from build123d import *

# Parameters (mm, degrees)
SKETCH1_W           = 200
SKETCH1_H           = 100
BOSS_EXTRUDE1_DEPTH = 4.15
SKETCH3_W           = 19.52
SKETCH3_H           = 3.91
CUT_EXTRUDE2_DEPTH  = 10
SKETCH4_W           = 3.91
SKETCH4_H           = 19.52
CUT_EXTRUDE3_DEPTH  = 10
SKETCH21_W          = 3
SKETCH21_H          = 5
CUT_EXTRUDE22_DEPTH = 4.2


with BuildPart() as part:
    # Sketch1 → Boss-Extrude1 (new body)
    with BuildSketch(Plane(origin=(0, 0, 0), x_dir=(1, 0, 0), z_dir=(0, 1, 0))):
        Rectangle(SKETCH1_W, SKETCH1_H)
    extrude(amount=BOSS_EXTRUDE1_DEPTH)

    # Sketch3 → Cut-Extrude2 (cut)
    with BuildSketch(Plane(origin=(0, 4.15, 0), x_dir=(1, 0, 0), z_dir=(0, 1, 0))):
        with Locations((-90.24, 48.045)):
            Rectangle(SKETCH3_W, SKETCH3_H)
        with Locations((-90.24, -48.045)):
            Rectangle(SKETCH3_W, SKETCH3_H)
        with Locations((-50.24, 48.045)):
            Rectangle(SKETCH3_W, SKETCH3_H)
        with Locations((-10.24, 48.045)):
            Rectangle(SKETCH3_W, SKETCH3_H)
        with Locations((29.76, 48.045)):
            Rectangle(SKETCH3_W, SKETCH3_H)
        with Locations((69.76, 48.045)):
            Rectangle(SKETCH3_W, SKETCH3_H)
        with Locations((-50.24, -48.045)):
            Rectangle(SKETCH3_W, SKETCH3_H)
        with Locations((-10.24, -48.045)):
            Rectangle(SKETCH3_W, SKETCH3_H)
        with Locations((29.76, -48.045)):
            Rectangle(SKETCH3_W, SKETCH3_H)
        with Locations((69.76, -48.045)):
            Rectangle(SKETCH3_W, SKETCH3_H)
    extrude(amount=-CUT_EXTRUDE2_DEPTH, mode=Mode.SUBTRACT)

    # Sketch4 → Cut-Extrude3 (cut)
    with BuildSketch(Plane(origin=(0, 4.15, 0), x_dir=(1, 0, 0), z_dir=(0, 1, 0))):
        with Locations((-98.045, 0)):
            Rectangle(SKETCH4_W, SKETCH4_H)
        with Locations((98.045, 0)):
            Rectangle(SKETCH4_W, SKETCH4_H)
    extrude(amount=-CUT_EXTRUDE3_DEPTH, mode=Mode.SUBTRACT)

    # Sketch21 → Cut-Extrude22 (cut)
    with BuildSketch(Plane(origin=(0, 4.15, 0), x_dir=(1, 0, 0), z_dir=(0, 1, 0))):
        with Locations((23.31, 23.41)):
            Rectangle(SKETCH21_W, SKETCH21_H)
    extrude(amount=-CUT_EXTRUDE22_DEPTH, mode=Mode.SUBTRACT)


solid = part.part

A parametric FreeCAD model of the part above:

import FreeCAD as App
import Part
import Sketcher

doc = App.newDocument("Part")
params = doc.addObject("Spreadsheet::Sheet", "Params")
for row, (alias, value) in enumerate([
    ("sketch1_width", "200 mm"),
    ("sketch1_height", "100 mm"),
    ("pad1_length", "4.15 mm"),
    ("sketch2_width", "19.52 mm"),
    ("sketch2_height", "3.91 mm"),
    ("pocket1_length", "10 mm"),
    ("sketch3_width", "3.91 mm"),
    ("sketch3_height", "19.52 mm"),
    ("pocket2_length", "10 mm"),
    ("sketch4_width", "3 mm"),
    ("sketch4_height", "5 mm"),
    ("pocket3_length", "4.2 mm"),
], start=1):
    params.set(f"A{row}", alias)
    params.set(f"B{row}", "=" + value)
    params.setAlias(f"B{row}", alias)

body = doc.addObject("PartDesign::Body", "Body")

sketch1 = body.newObject("Sketcher::SketchObject", "Sketch")
sketch1.AttachmentSupport = (doc.getObject("XZ_Plane"), [""])
sketch1.MapMode = "FlatFace"
sketch1.addGeometry(Part.LineSegment(App.Vector(-100, -50, 0), App.Vector(-100, 50, 0)), False)
sketch1.addGeometry(Part.LineSegment(App.Vector(-100, 50, 0), App.Vector(100, 50, 0)), False)
sketch1.addGeometry(Part.LineSegment(App.Vector(100, 50, 0), App.Vector(100, -50, 0)), False)
sketch1.addGeometry(Part.LineSegment(App.Vector(100, -50, 0), App.Vector(-100, -50, 0)), False)
sketch1.addConstraint(Sketcher.Constraint("Coincident", 0, 2, 1, 1))
sketch1.addConstraint(Sketcher.Constraint("Coincident", 1, 2, 2, 1))
sketch1.addConstraint(Sketcher.Constraint("Coincident", 2, 2, 3, 1))
sketch1.addConstraint(Sketcher.Constraint("Coincident", 3, 2, 0, 1))
sketch1.addConstraint(Sketcher.Constraint("Vertical", 0))
sketch1.addConstraint(Sketcher.Constraint("Horizontal", 1))
sketch1.addConstraint(Sketcher.Constraint("Vertical", 2))
sketch1.addConstraint(Sketcher.Constraint("Horizontal", 3))
sketch1.addConstraint(Sketcher.Constraint("Symmetric", 0, 2, 2, 2, -1, 1))
sketch1.addConstraint(Sketcher.Constraint("DistanceX", 1, 1, 1, 2, 200.0))
sketch1.addConstraint(Sketcher.Constraint("DistanceY", 0, 1, 0, 2, 100.0))
sketch1.setExpression("Constraints[9]", "Params.sketch1_width")
sketch1.setExpression("Constraints[10]", "Params.sketch1_height")
pad1 = body.newObject("PartDesign::Pad", "Pad")
pad1.Profile = sketch1
pad1.setExpression("Length", "Params.pad1_length")
pad1.Reversed = True

sketch2 = body.newObject("Sketcher::SketchObject", "Sketch001")
sketch2.AttachmentSupport = (doc.getObject("XZ_Plane"), [""])
sketch2.MapMode = "FlatFace"
sketch2.AttachmentOffset = App.Placement(App.Vector(0, 0, -4.15), App.Rotation())
sketch2.addGeometry(Part.LineSegment(App.Vector(-100, -50, 0), App.Vector(-100, -46.1, 0)), False)
sketch2.addGeometry(Part.LineSegment(App.Vector(-100, -46.1, 0), App.Vector(-80.5, -46.1, 0)), False)
sketch2.addGeometry(Part.LineSegment(App.Vector(-80.5, -46.1, 0), App.Vector(-80.5, -50, 0)), False)
sketch2.addGeometry(Part.LineSegment(App.Vector(-80.5, -50, 0), App.Vector(-100, -50, 0)), False)
sketch2.addGeometry(Part.LineSegment(App.Vector(-100, 46.1, 0), App.Vector(-100, 50, 0)), False)
sketch2.addGeometry(Part.LineSegment(App.Vector(-100, 50, 0), App.Vector(-80.5, 50, 0)), False)
sketch2.addGeometry(Part.LineSegment(App.Vector(-80.5, 50, 0), App.Vector(-80.5, 46.1, 0)), False)
sketch2.addGeometry(Part.LineSegment(App.Vector(-80.5, 46.1, 0), App.Vector(-100, 46.1, 0)), False)
sketch2.addGeometry(Part.LineSegment(App.Vector(-60, -50, 0), App.Vector(-60, -46.1, 0)), False)
sketch2.addGeometry(Part.LineSegment(App.Vector(-60, -46.1, 0), App.Vector(-40.5, -46.1, 0)), False)
sketch2.addGeometry(Part.LineSegment(App.Vector(-40.5, -46.1, 0), App.Vector(-40.5, -50, 0)), False)
sketch2.addGeometry(Part.LineSegment(App.Vector(-40.5, -50, 0), App.Vector(-60, -50, 0)), False)
sketch2.addGeometry(Part.LineSegment(App.Vector(-20, -50, 0), App.Vector(-20, -46.1, 0)), False)
sketch2.addGeometry(Part.LineSegment(App.Vector(-20, -46.1, 0), App.Vector(-0.5, -46.1, 0)), False)
sketch2.addGeometry(Part.LineSegment(App.Vector(-0.5, -46.1, 0), App.Vector(-0.5, -50, 0)), False)
sketch2.addGeometry(Part.LineSegment(App.Vector(-0.5, -50, 0), App.Vector(-20, -50, 0)), False)
sketch2.addGeometry(Part.LineSegment(App.Vector(20, -50, 0), App.Vector(20, -46.1, 0)), False)
sketch2.addGeometry(Part.LineSegment(App.Vector(20, -46.1, 0), App.Vector(39.5, -46.1, 0)), False)
sketch2.addGeometry(Part.LineSegment(App.Vector(39.5, -46.1, 0), App.Vector(39.5, -50, 0)), False)
sketch2.addGeometry(Part.LineSegment(App.Vector(39.5, -50, 0), App.Vector(20, -50, 0)), False)
sketch2.addGeometry(Part.LineSegment(App.Vector(60, -50, 0), App.Vector(60, -46.1, 0)), False)
sketch2.addGeometry(Part.LineSegment(App.Vector(60, -46.1, 0), App.Vector(79.5, -46.1, 0)), False)
sketch2.addGeometry(Part.LineSegment(App.Vector(79.5, -46.1, 0), App.Vector(79.5, -50, 0)), False)
sketch2.addGeometry(Part.LineSegment(App.Vector(79.5, -50, 0), App.Vector(60, -50, 0)), False)
sketch2.addGeometry(Part.LineSegment(App.Vector(-60, 46.1, 0), App.Vector(-60, 50, 0)), False)
sketch2.addGeometry(Part.LineSegment(App.Vector(-60, 50, 0), App.Vector(-40.5, 50, 0)), False)
sketch2.addGeometry(Part.LineSegment(App.Vector(-40.5, 50, 0), App.Vector(-40.5, 46.1, 0)), False)
sketch2.addGeometry(Part.LineSegment(App.Vector(-40.5, 46.1, 0), App.Vector(-60, 46.1, 0)), False)
sketch2.addGeometry(Part.LineSegment(App.Vector(-20, 46.1, 0), App.Vector(-20, 50, 0)), False)
sketch2.addGeometry(Part.LineSegment(App.Vector(-20, 50, 0), App.Vector(-0.5, 50, 0)), False)
sketch2.addGeometry(Part.LineSegment(App.Vector(-0.5, 50, 0), App.Vector(-0.5, 46.1, 0)), False)
sketch2.addGeometry(Part.LineSegment(App.Vector(-0.5, 46.1, 0), App.Vector(-20, 46.1, 0)), False)
sketch2.addGeometry(Part.LineSegment(App.Vector(20, 46.1, 0), App.Vector(20, 50, 0)), False)
sketch2.addGeometry(Part.LineSegment(App.Vector(20, 50, 0), App.Vector(39.5, 50, 0)), False)
sketch2.addGeometry(Part.LineSegment(App.Vector(39.5, 50, 0), App.Vector(39.5, 46.1, 0)), False)
sketch2.addGeometry(Part.LineSegment(App.Vector(39.5, 46.1, 0), App.Vector(20, 46.1, 0)), False)
sketch2.addGeometry(Part.LineSegment(App.Vector(60, 46.1, 0), App.Vector(60, 50, 0)), False)
sketch2.addGeometry(Part.LineSegment(App.Vector(60, 50, 0), App.Vector(79.5, 50, 0)), False)
sketch2.addGeometry(Part.LineSegment(App.Vector(79.5, 50, 0), App.Vector(79.5, 46.1, 0)), False)
sketch2.addGeometry(Part.LineSegment(App.Vector(79.5, 46.1, 0), App.Vector(60, 46.1, 0)), False)
sketch2.addConstraint(Sketcher.Constraint("Coincident", 0, 2, 1, 1))
sketch2.addConstraint(Sketcher.Constraint("Coincident", 1, 2, 2, 1))
sketch2.addConstraint(Sketcher.Constraint("Coincident", 2, 2, 3, 1))
sketch2.addConstraint(Sketcher.Constraint("Coincident", 3, 2, 0, 1))
sketch2.addConstraint(Sketcher.Constraint("Coincident", 4, 2, 5, 1))
sketch2.addConstraint(Sketcher.Constraint("Coincident", 5, 2, 6, 1))
sketch2.addConstraint(Sketcher.Constraint("Coincident", 6, 2, 7, 1))
sketch2.addConstraint(Sketcher.Constraint("Coincident", 7, 2, 4, 1))
sketch2.addConstraint(Sketcher.Constraint("Coincident", 8, 2, 9, 1))
sketch2.addConstraint(Sketcher.Constraint("Coincident", 9, 2, 10, 1))
sketch2.addConstraint(Sketcher.Constraint("Coincident", 10, 2, 11, 1))
sketch2.addConstraint(Sketcher.Constraint("Coincident", 11, 2, 8, 1))
sketch2.addConstraint(Sketcher.Constraint("Coincident", 12, 2, 13, 1))
sketch2.addConstraint(Sketcher.Constraint("Coincident", 13, 2, 14, 1))
sketch2.addConstraint(Sketcher.Constraint("Coincident", 14, 2, 15, 1))
sketch2.addConstraint(Sketcher.Constraint("Coincident", 15, 2, 12, 1))
sketch2.addConstraint(Sketcher.Constraint("Coincident", 16, 2, 17, 1))
sketch2.addConstraint(Sketcher.Constraint("Coincident", 17, 2, 18, 1))
sketch2.addConstraint(Sketcher.Constraint("Coincident", 18, 2, 19, 1))
sketch2.addConstraint(Sketcher.Constraint("Coincident", 19, 2, 16, 1))
sketch2.addConstraint(Sketcher.Constraint("Coincident", 20, 2, 21, 1))
sketch2.addConstraint(Sketcher.Constraint("Coincident", 21, 2, 22, 1))
sketch2.addConstraint(Sketcher.Constraint("Coincident", 22, 2, 23, 1))
sketch2.addConstraint(Sketcher.Constraint("Coincident", 23, 2, 20, 1))
sketch2.addConstraint(Sketcher.Constraint("Coincident", 24, 2, 25, 1))
sketch2.addConstraint(Sketcher.Constraint("Coincident", 25, 2, 26, 1))
sketch2.addConstraint(Sketcher.Constraint("Coincident", 26, 2, 27, 1))
sketch2.addConstraint(Sketcher.Constraint("Coincident", 27, 2, 24, 1))
sketch2.addConstraint(Sketcher.Constraint("Coincident", 28, 2, 29, 1))
sketch2.addConstraint(Sketcher.Constraint("Coincident", 29, 2, 30, 1))
sketch2.addConstraint(Sketcher.Constraint("Coincident", 30, 2, 31, 1))
sketch2.addConstraint(Sketcher.Constraint("Coincident", 31, 2, 28, 1))
sketch2.addConstraint(Sketcher.Constraint("Coincident", 32, 2, 33, 1))
sketch2.addConstraint(Sketcher.Constraint("Coincident", 33, 2, 34, 1))
sketch2.addConstraint(Sketcher.Constraint("Coincident", 34, 2, 35, 1))
sketch2.addConstraint(Sketcher.Constraint("Coincident", 35, 2, 32, 1))
sketch2.addConstraint(Sketcher.Constraint("Coincident", 36, 2, 37, 1))
sketch2.addConstraint(Sketcher.Constraint("Coincident", 37, 2, 38, 1))
sketch2.addConstraint(Sketcher.Constraint("Coincident", 38, 2, 39, 1))
sketch2.addConstraint(Sketcher.Constraint("Coincident", 39, 2, 36, 1))
sketch2.addConstraint(Sketcher.Constraint("Vertical", 0))
sketch2.addConstraint(Sketcher.Constraint("Horizontal", 1))
sketch2.addConstraint(Sketcher.Constraint("Vertical", 2))
sketch2.addConstraint(Sketcher.Constraint("Horizontal", 3))
sketch2.addConstraint(Sketcher.Constraint("Vertical", 4))
sketch2.addConstraint(Sketcher.Constraint("Horizontal", 5))
sketch2.addConstraint(Sketcher.Constraint("Vertical", 6))
sketch2.addConstraint(Sketcher.Constraint("Horizontal", 7))
sketch2.addConstraint(Sketcher.Constraint("Vertical", 8))
sketch2.addConstraint(Sketcher.Constraint("Horizontal", 9))
sketch2.addConstraint(Sketcher.Constraint("Vertical", 10))
sketch2.addConstraint(Sketcher.Constraint("Horizontal", 11))
sketch2.addConstraint(Sketcher.Constraint("Vertical", 12))
sketch2.addConstraint(Sketcher.Constraint("Horizontal", 13))
sketch2.addConstraint(Sketcher.Constraint("Vertical", 14))
sketch2.addConstraint(Sketcher.Constraint("Horizontal", 15))
sketch2.addConstraint(Sketcher.Constraint("Vertical", 16))
sketch2.addConstraint(Sketcher.Constraint("Horizontal", 17))
sketch2.addConstraint(Sketcher.Constraint("Vertical", 18))
sketch2.addConstraint(Sketcher.Constraint("Horizontal", 19))
sketch2.addConstraint(Sketcher.Constraint("Vertical", 20))
sketch2.addConstraint(Sketcher.Constraint("Horizontal", 21))
sketch2.addConstraint(Sketcher.Constraint("Vertical", 22))
sketch2.addConstraint(Sketcher.Constraint("Horizontal", 23))
sketch2.addConstraint(Sketcher.Constraint("Vertical", 24))
sketch2.addConstraint(Sketcher.Constraint("Horizontal", 25))
sketch2.addConstraint(Sketcher.Constraint("Vertical", 26))
sketch2.addConstraint(Sketcher.Constraint("Horizontal", 27))
sketch2.addConstraint(Sketcher.Constraint("Vertical", 28))
sketch2.addConstraint(Sketcher.Constraint("Horizontal", 29))
sketch2.addConstraint(Sketcher.Constraint("Vertical", 30))
sketch2.addConstraint(Sketcher.Constraint("Horizontal", 31))
sketch2.addConstraint(Sketcher.Constraint("Vertical", 32))
sketch2.addConstraint(Sketcher.Constraint("Horizontal", 33))
sketch2.addConstraint(Sketcher.Constraint("Vertical", 34))
sketch2.addConstraint(Sketcher.Constraint("Horizontal", 35))
sketch2.addConstraint(Sketcher.Constraint("Vertical", 36))
sketch2.addConstraint(Sketcher.Constraint("Horizontal", 37))
sketch2.addConstraint(Sketcher.Constraint("Vertical", 38))
sketch2.addConstraint(Sketcher.Constraint("Horizontal", 39))
sketch2.addConstraint(Sketcher.Constraint("Symmetric", 23, 2, 24, 2, -1, 1))
sketch2.addConstraint(Sketcher.Constraint("Symmetric", 19, 2, 28, 2, -1, 1))
sketch2.addConstraint(Sketcher.Constraint("Symmetric", 15, 2, 32, 2, -1, 1))
sketch2.addConstraint(Sketcher.Constraint("Symmetric", 11, 2, 36, 2, -1, 1))
sketch2.addConstraint(Sketcher.Constraint("Symmetric", 12, 2, 16, 2, -2))
sketch2.addConstraint(Sketcher.Constraint("Symmetric", 8, 2, 20, 2, -2))
sketch2.addConstraint(Sketcher.Constraint("Symmetric", 3, 2, 4, 2, -1))
sketch2.addConstraint(Sketcher.Constraint("Symmetric", 1, 2, 6, 2, -1))
sketch2.addConstraint(Sketcher.Constraint("Symmetric", 10, 2, 25, 2, -1))
sketch2.addConstraint(Sketcher.Constraint("Symmetric", 14, 2, 29, 2, -1))
sketch2.addConstraint(Sketcher.Constraint("Symmetric", 17, 2, 34, 2, -1))
sketch2.addConstraint(Sketcher.Constraint("Symmetric", 21, 2, 38, 2, -1))
sketch2.addConstraint(Sketcher.Constraint("Horizontal", 1, 2, 8, 2))
sketch2.addConstraint(Sketcher.Constraint("Horizontal", 3, 2, 10, 2))
sketch2.addConstraint(Sketcher.Constraint("Horizontal", 9, 2, 12, 2))
sketch2.addConstraint(Sketcher.Constraint("Horizontal", 11, 2, 14, 2))
sketch2.addConstraint(Sketcher.Constraint("Horizontal", 7, 2, 26, 2))
sketch2.addConstraint(Sketcher.Constraint("Horizontal", 27, 2, 30, 2))
sketch2.addConstraint(Sketcher.Constraint("Equal", 7, 9))
sketch2.addConstraint(Sketcher.Constraint("Equal", 11, 13))
sketch2.addConstraint(Sketcher.Constraint("Equal", 15, 17))
sketch2.addConstraint(Sketcher.Constraint("Equal", 19, 21))
sketch2.addConstraint(Sketcher.Constraint("DistanceX", 0, 2, -1, 1, 100.0))
sketch2.addConstraint(Sketcher.Constraint("DistanceY", 2, 2, -1, 1, 50.0))
sketch2.addConstraint(Sketcher.Constraint("DistanceX", 8, 2, -1, 1, 60.0))
sketch2.addConstraint(Sketcher.Constraint("DistanceX", 12, 2, -1, 1, 20.0))
sketch2.addConstraint(Sketcher.Constraint("DistanceX", 1, 1, 1, 2, 19.52))
sketch2.addConstraint(Sketcher.Constraint("DistanceY", 0, 1, 0, 2, 3.91))
sketch2.setExpression("Constraints[106]", "Params.sketch2_width")
sketch2.setExpression("Constraints[107]", "Params.sketch2_height")
pocket1 = body.newObject("PartDesign::Pocket", "Pocket")
pocket1.Profile = sketch2
pocket1.setExpression("Length", "Params.pocket1_length")
pocket1.Reversed = True

sketch3 = body.newObject("Sketcher::SketchObject", "Sketch002")
sketch3.AttachmentSupport = (doc.getObject("XZ_Plane"), [""])
sketch3.MapMode = "FlatFace"
sketch3.AttachmentOffset = App.Placement(App.Vector(0, 0, -4.15), App.Rotation())
sketch3.addGeometry(Part.LineSegment(App.Vector(-100, -9.8, 0), App.Vector(-100, 9.8, 0)), False)
sketch3.addGeometry(Part.LineSegment(App.Vector(-100, 9.8, 0), App.Vector(-96.1, 9.8, 0)), False)
sketch3.addGeometry(Part.LineSegment(App.Vector(-96.1, 9.8, 0), App.Vector(-96.1, -9.8, 0)), False)
sketch3.addGeometry(Part.LineSegment(App.Vector(-96.1, -9.8, 0), App.Vector(-100, -9.8, 0)), False)
sketch3.addGeometry(Part.LineSegment(App.Vector(96.1, -9.8, 0), App.Vector(96.1, 9.8, 0)), False)
sketch3.addGeometry(Part.LineSegment(App.Vector(96.1, 9.8, 0), App.Vector(100, 9.8, 0)), False)
sketch3.addGeometry(Part.LineSegment(App.Vector(100, 9.8, 0), App.Vector(100, -9.8, 0)), False)
sketch3.addGeometry(Part.LineSegment(App.Vector(100, -9.8, 0), App.Vector(96.1, -9.8, 0)), False)
sketch3.addConstraint(Sketcher.Constraint("Coincident", 0, 2, 1, 1))
sketch3.addConstraint(Sketcher.Constraint("Coincident", 1, 2, 2, 1))
sketch3.addConstraint(Sketcher.Constraint("Coincident", 2, 2, 3, 1))
sketch3.addConstraint(Sketcher.Constraint("Coincident", 3, 2, 0, 1))
sketch3.addConstraint(Sketcher.Constraint("Coincident", 4, 2, 5, 1))
sketch3.addConstraint(Sketcher.Constraint("Coincident", 5, 2, 6, 1))
sketch3.addConstraint(Sketcher.Constraint("Coincident", 6, 2, 7, 1))
sketch3.addConstraint(Sketcher.Constraint("Coincident", 7, 2, 4, 1))
sketch3.addConstraint(Sketcher.Constraint("Vertical", 0))
sketch3.addConstraint(Sketcher.Constraint("Horizontal", 1))
sketch3.addConstraint(Sketcher.Constraint("Vertical", 2))
sketch3.addConstraint(Sketcher.Constraint("Horizontal", 3))
sketch3.addConstraint(Sketcher.Constraint("Vertical", 4))
sketch3.addConstraint(Sketcher.Constraint("Horizontal", 5))
sketch3.addConstraint(Sketcher.Constraint("Vertical", 6))
sketch3.addConstraint(Sketcher.Constraint("Horizontal", 7))
sketch3.addConstraint(Sketcher.Constraint("Symmetric", 2, 2, 4, 2, -1, 1))
sketch3.addConstraint(Sketcher.Constraint("Symmetric", 0, 2, 6, 2, -1, 1))
sketch3.addConstraint(Sketcher.Constraint("Horizontal", 1, 2, 4, 2))
sketch3.addConstraint(Sketcher.Constraint("DistanceX", 0, 2, -1, 1, 100.0))
sketch3.addConstraint(Sketcher.Constraint("DistanceX", 1, 1, 1, 2, 3.91))
sketch3.addConstraint(Sketcher.Constraint("DistanceY", 0, 1, 0, 2, 19.52))
sketch3.setExpression("Constraints[20]", "Params.sketch3_width")
sketch3.setExpression("Constraints[21]", "Params.sketch3_height")
pocket2 = body.newObject("PartDesign::Pocket", "Pocket001")
pocket2.Profile = sketch3
pocket2.setExpression("Length", "Params.pocket2_length")
pocket2.Reversed = True

sketch4 = body.newObject("Sketcher::SketchObject", "Sketch003")
sketch4.AttachmentSupport = (doc.getObject("XZ_Plane"), [""])
sketch4.MapMode = "FlatFace"
sketch4.AttachmentOffset = App.Placement(App.Vector(0, 0, -4.15), App.Rotation())
sketch4.addGeometry(Part.LineSegment(App.Vector(21.8, -25.9, 0), App.Vector(21.8, -20.9, 0)), False)
sketch4.addGeometry(Part.LineSegment(App.Vector(21.8, -20.9, 0), App.Vector(24.8, -20.9, 0)), False)
sketch4.addGeometry(Part.LineSegment(App.Vector(24.8, -20.9, 0), App.Vector(24.8, -25.9, 0)), False)
sketch4.addGeometry(Part.LineSegment(App.Vector(24.8, -25.9, 0), App.Vector(21.8, -25.9, 0)), False)
sketch4.addConstraint(Sketcher.Constraint("Coincident", 0, 2, 1, 1))
sketch4.addConstraint(Sketcher.Constraint("Coincident", 1, 2, 2, 1))
sketch4.addConstraint(Sketcher.Constraint("Coincident", 2, 2, 3, 1))
sketch4.addConstraint(Sketcher.Constraint("Coincident", 3, 2, 0, 1))
sketch4.addConstraint(Sketcher.Constraint("Vertical", 0))
sketch4.addConstraint(Sketcher.Constraint("Horizontal", 1))
sketch4.addConstraint(Sketcher.Constraint("Vertical", 2))
sketch4.addConstraint(Sketcher.Constraint("Horizontal", 3))
sketch4.addConstraint(Sketcher.Constraint("DistanceX", 1, 1, 1, 2, 3.0))
sketch4.addConstraint(Sketcher.Constraint("DistanceY", 0, 1, 0, 2, 5.0))
sketch4.addConstraint(Sketcher.Constraint("DistanceX", -1, 1, 0, 2, 21.81))
sketch4.addConstraint(Sketcher.Constraint("DistanceY", 0, 2, -1, 1, 20.91))
sketch4.setExpression("Constraints[8]", "Params.sketch4_width")
sketch4.setExpression("Constraints[9]", "Params.sketch4_height")
pocket3 = body.newObject("PartDesign::Pocket", "Pocket002")
pocket3.Profile = sketch4
pocket3.setExpression("Length", "Params.pocket3_length")
pocket3.Reversed = True

doc.recompute()
